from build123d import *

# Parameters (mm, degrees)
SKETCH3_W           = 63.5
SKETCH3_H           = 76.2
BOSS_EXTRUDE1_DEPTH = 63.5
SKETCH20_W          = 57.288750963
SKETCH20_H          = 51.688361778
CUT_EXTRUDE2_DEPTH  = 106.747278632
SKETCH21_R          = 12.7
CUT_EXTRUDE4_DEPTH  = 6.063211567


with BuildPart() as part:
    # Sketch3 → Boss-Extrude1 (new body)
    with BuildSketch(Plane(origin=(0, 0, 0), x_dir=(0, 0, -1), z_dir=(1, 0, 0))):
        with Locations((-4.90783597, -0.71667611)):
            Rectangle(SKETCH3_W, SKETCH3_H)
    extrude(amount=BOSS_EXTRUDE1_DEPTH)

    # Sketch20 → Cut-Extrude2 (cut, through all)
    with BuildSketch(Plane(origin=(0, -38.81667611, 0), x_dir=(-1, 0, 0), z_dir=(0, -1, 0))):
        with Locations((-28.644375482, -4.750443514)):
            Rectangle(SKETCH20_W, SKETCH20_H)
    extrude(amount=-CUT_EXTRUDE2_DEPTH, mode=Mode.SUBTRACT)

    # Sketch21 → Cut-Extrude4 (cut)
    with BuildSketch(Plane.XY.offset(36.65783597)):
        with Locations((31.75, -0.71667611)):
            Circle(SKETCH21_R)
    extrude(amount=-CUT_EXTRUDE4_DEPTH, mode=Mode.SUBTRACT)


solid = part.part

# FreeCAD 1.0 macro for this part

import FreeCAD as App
import Part
import Sketcher
Q = App.Units.Quantity


def add_polygon(sketch, points):
    """Adds a closed chain of lines whose ends are joined by coincident constraints."""
    first, n = sketch.GeometryCount, len(points)
    for a, b in zip(points, points[1:] + points[:1]):
        sketch.addGeometry(Part.LineSegment(App.Vector(*a, 0), App.Vector(*b, 0)), False)
    for i in range(n):
        sketch.addConstraint(Sketcher.Constraint("Coincident", first + i, 2, first + (i + 1) % n, 1))

doc = App.newDocument("Part")
params = doc.addObject("Spreadsheet::Sheet", "Params")
for row, (alias, value) in enumerate([
    ("sketch1_width", "3 in"),
    ("sketch1_height", "2.5 in"),
    ("pad1_length", "2.5 in"),
    ("sketch3_diameter", "1 in"),
    ("pocket2_length", "6.063212 mm"),
], start=1):
    params.set(f"A{row}", alias)
    params.set(f"B{row}", "=" + value)
    params.setAlias(f"B{row}", alias)

body = doc.addObject("PartDesign::Body", "Body")

sketch1 = body.newObject("Sketcher::SketchObject", "Sketch")
sketch1.AttachmentSupport = (doc.getObject("YZ_Plane"), [""])
sketch1.MapMode = "FlatFace"
add_polygon(sketch1, [(37.383324, 36.657836), (-38.816676, 36.657836), (-38.816676, -26.842164), (37.383324, -26.842164)])
sketch1.addConstraint([
    Sketcher.Constraint("Horizontal", 0),
    Sketcher.Constraint("Vertical", 1),
    Sketcher.Constraint("Horizontal", 2),
    Sketcher.Constraint("Vertical", 3),
    Sketcher.Constraint("DistanceX", 0, 2, 0, 1, Q("3 in")),
    Sketcher.Constraint("DistanceY", 1, 2, 1, 1, Q("2.5 in")),
    Sketcher.Constraint("DistanceX", 0, 2, -1, 1, Q("38.816676 mm")),
    Sketcher.Constraint("DistanceY", -1, 1, 0, 2, Q("36.657836 mm")),
])
sketch1.setExpression("Constraints[8]", "Params.sketch1_width")
sketch1.setExpression("Constraints[9]", "Params.sketch1_height")
pad1 = body.newObject("PartDesign::Pad", "Pad")
pad1.Profile = sketch1
pad1.setExpression("Length", "Params.pad1_length")

sketch2 = body.newObject("Sketcher::SketchObject", "Sketch001")
sketch2.AttachmentSupport = (doc.getObject("XZ_Plane"), [""])
sketch2.MapMode = "FlatFace"
sketch2.AttachmentOffset = App.Placement(App.Vector(0, 0, 38.816676), App.Rotation())
add_polygon(sketch2, [(57.288751, -21.093737), (57.288751, 30.594624), (0, 30.594624), (0, -21.093737)])
sketch2.addConstraint([
    Sketcher.Constraint("Vertical", 0),
    Sketcher.Constraint("Horizontal", 1),
    Sketcher.Constraint("Vertical", 2),
    Sketcher.Constraint("Horizontal", 3),
    Sketcher.Constraint("PointOnObject", 1, 2, -2),
    Sketcher.Constraint("DistanceX", 1, 2, 1, 1, Q("57.288751 mm")),
    Sketcher.Constraint("DistanceY", 0, 1, 0, 2, Q("51.688362 mm")),
    Sketcher.Constraint("DistanceY", -1, 1, 0, 2, Q("30.594624 mm")),
])
pocket1 = body.newObject("PartDesign::Pocket", "Pocket")
pocket1.Profile = sketch2
pocket1.Type = "ThroughAll"

sketch3 = body.newObject("Sketcher::SketchObject", "Sketch002")
sketch3.AttachmentSupport = (doc.getObject("XY_Plane"), [""])
sketch3.MapMode = "FlatFace"
sketch3.AttachmentOffset = App.Placement(App.Vector(0, 0, 36.657836), App.Rotation())
sketch3.addGeometry(Part.Circle(App.Vector(31.75, -0.716676, 0), App.Vector(0, 0, 1), 12.7), False)
sketch3.addConstraint([
    Sketcher.Constraint("Diameter", 0, Q("1 in")),
    Sketcher.Constraint("DistanceX", -1, 1, 0, 3, Q("1.25 in")),
    Sketcher.Constraint("DistanceY", 0, 3, -1, 1, Q("0.716676 mm")),
])
sketch3.setExpression("Constraints[0]", "Params.sketch3_diameter")
pocket2 = body.newObject("PartDesign::Pocket", "Pocket001")
pocket2.Profile = sketch3
pocket2.setExpression("Length", "Params.pocket2_length")

doc.recompute()
